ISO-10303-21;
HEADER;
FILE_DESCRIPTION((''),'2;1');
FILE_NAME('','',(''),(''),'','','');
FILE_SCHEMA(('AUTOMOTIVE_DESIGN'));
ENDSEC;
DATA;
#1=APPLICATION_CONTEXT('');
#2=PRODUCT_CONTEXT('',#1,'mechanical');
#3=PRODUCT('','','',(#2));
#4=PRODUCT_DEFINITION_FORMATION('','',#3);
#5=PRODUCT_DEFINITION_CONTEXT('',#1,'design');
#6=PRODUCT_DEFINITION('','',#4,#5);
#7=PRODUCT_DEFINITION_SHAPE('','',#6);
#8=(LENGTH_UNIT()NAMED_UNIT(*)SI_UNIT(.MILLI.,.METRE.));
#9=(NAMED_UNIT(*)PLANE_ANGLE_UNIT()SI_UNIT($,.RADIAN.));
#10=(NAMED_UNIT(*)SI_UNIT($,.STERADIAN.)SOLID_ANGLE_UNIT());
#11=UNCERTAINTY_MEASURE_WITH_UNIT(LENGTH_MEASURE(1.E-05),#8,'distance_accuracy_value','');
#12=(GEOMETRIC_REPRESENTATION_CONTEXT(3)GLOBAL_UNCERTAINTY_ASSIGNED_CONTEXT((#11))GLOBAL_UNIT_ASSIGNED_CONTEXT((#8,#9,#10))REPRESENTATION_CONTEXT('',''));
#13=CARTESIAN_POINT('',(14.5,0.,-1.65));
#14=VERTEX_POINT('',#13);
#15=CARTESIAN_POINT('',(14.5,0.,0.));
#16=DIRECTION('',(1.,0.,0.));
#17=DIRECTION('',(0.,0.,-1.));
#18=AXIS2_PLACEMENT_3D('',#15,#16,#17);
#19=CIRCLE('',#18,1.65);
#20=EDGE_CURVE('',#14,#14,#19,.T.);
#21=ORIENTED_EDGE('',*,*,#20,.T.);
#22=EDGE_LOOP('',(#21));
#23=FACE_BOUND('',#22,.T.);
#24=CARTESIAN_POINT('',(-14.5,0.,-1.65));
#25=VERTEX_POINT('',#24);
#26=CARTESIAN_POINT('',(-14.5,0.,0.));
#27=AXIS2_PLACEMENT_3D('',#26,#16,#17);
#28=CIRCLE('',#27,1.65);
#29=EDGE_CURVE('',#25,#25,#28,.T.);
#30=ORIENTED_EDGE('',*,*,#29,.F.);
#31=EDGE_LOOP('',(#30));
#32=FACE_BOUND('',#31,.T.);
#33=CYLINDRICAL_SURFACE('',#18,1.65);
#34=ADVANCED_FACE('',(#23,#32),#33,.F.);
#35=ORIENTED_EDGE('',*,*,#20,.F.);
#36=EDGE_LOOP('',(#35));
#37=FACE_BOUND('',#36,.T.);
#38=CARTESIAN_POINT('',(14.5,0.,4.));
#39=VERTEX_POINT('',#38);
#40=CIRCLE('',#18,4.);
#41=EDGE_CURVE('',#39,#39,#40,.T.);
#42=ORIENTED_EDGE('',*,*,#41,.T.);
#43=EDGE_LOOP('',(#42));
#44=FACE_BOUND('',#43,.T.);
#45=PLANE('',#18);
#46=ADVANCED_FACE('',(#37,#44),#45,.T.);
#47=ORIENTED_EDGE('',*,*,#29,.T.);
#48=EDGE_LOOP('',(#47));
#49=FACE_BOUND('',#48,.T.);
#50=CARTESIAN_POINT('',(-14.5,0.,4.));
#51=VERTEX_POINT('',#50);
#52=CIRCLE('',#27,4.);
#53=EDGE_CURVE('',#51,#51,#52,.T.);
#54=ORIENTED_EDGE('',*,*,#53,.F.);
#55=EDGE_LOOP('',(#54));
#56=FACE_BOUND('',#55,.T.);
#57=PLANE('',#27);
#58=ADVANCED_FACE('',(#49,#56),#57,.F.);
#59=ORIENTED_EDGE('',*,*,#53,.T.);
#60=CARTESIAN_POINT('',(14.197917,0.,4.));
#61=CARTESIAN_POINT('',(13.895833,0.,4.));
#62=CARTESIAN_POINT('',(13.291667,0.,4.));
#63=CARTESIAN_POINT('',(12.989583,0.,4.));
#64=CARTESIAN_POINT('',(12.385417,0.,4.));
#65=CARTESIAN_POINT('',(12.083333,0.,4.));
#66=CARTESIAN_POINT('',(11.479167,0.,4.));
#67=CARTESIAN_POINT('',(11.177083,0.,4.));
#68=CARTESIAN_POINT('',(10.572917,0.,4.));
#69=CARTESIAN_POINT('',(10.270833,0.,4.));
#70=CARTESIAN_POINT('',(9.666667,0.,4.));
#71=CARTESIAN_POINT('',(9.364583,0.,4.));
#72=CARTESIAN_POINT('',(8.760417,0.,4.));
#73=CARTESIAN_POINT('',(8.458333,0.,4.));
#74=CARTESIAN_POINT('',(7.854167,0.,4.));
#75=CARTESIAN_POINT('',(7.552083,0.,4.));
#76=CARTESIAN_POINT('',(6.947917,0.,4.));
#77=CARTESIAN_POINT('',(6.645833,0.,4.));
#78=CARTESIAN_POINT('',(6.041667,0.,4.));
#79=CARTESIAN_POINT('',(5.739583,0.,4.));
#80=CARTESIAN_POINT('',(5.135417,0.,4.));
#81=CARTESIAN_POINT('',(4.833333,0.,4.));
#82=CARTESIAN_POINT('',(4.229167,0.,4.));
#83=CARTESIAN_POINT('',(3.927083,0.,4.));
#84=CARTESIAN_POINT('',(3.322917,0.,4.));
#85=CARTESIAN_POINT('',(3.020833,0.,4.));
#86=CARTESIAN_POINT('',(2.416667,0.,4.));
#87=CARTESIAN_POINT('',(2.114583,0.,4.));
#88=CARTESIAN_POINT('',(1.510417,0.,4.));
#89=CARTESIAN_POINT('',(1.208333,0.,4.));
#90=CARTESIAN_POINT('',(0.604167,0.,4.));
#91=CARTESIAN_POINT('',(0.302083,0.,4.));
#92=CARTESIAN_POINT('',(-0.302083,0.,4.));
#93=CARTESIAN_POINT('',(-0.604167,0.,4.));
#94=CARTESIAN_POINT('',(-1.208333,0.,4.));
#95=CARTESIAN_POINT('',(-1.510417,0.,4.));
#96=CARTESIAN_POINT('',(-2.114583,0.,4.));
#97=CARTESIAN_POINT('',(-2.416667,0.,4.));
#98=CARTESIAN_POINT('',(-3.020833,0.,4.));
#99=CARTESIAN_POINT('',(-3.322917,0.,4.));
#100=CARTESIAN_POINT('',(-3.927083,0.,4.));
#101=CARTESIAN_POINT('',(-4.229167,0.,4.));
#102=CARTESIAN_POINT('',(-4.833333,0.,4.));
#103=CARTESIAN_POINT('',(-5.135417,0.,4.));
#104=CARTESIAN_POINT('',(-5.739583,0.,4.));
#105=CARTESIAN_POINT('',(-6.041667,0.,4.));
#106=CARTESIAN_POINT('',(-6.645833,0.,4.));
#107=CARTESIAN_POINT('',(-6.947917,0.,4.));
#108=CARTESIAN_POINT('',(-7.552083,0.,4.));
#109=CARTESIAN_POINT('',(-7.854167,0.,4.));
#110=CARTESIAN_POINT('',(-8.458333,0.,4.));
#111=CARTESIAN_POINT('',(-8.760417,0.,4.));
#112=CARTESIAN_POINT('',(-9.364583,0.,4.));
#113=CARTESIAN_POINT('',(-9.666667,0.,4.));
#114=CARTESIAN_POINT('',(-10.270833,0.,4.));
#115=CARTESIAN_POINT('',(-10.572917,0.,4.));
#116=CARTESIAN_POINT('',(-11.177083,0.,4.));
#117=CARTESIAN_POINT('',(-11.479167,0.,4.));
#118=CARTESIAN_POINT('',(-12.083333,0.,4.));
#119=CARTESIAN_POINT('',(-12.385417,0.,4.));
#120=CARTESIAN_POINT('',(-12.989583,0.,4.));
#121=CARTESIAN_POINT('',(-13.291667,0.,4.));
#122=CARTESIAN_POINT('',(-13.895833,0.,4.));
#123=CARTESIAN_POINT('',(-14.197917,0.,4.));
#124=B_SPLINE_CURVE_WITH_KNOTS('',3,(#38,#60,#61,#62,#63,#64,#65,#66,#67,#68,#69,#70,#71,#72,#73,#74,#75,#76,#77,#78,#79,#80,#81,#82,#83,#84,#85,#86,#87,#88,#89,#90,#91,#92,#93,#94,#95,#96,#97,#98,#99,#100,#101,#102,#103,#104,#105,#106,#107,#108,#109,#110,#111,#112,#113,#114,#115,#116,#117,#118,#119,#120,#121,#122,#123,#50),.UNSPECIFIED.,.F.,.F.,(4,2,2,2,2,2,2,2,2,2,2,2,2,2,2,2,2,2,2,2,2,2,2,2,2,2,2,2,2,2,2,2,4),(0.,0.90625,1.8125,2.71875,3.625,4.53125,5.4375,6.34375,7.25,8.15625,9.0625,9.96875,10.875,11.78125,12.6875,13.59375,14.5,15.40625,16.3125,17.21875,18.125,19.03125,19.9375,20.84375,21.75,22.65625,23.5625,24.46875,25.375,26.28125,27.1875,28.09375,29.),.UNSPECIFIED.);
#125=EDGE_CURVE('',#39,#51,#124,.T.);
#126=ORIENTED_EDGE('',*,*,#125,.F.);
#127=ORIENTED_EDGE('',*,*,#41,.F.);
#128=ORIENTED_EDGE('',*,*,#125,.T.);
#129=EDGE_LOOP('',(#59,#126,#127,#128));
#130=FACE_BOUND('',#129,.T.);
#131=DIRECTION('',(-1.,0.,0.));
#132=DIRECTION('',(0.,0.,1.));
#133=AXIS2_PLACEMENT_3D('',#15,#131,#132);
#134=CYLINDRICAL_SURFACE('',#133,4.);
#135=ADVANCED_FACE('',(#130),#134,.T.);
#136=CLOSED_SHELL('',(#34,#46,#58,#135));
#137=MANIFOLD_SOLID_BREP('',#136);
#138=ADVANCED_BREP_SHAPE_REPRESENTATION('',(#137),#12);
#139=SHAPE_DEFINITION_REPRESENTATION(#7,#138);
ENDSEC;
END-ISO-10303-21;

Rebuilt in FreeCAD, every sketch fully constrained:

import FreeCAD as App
import Part
import Sketcher
Q = App.Units.Quantity

doc = App.newDocument("Part")
body = doc.addObject("PartDesign::Body", "Body")

# Sketch on YZ plane
sketch1 = body.newObject("Sketcher::SketchObject", "Sketch")
sketch1.AttachmentSupport = (doc.getObject("YZ_Plane"), [""])
sketch1.MapMode = "FlatFace"
sketch1.addGeometry(Part.Circle(App.Vector(0, 0, 0), App.Vector(0, 0, 1), 4), False)
sketch1.addConstraint([
    Sketcher.Constraint("Coincident", 0, 3, -1, 1),
    Sketcher.Constraint("Diameter", 0, Q("8 mm")),
])
pad1 = body.newObject("PartDesign::Pad", "Pad")
pad1.Profile = sketch1
pad1.Length = 29
pad1.Midplane = True

# Sketch on YZ plane
sketch2 = body.newObject("Sketcher::SketchObject", "Sketch001")
sketch2.AttachmentSupport = (doc.getObject("YZ_Plane"), [""])
sketch2.MapMode = "FlatFace"
sketch2.AttachmentOffset = App.Placement(App.Vector(0, 0, 14.5), App.Rotation())
sketch2.addGeometry(Part.Circle(App.Vector(0, 0, 0), App.Vector(0, 0, 1), 1.6), False)
sketch2.addConstraint([
    Sketcher.Constraint("Coincident", 0, 3, -1, 1),
    Sketcher.Constraint("Diameter", 0, Q("3.3 mm")),
])
doc.recompute()
hole = body.newObject("PartDesign::Hole", "Hole")
hole.Profile = sketch2
hole.ThreadType = "None"
hole.Diameter = 3.3
hole.DepthType = "ThroughAll"

doc.recompute()
